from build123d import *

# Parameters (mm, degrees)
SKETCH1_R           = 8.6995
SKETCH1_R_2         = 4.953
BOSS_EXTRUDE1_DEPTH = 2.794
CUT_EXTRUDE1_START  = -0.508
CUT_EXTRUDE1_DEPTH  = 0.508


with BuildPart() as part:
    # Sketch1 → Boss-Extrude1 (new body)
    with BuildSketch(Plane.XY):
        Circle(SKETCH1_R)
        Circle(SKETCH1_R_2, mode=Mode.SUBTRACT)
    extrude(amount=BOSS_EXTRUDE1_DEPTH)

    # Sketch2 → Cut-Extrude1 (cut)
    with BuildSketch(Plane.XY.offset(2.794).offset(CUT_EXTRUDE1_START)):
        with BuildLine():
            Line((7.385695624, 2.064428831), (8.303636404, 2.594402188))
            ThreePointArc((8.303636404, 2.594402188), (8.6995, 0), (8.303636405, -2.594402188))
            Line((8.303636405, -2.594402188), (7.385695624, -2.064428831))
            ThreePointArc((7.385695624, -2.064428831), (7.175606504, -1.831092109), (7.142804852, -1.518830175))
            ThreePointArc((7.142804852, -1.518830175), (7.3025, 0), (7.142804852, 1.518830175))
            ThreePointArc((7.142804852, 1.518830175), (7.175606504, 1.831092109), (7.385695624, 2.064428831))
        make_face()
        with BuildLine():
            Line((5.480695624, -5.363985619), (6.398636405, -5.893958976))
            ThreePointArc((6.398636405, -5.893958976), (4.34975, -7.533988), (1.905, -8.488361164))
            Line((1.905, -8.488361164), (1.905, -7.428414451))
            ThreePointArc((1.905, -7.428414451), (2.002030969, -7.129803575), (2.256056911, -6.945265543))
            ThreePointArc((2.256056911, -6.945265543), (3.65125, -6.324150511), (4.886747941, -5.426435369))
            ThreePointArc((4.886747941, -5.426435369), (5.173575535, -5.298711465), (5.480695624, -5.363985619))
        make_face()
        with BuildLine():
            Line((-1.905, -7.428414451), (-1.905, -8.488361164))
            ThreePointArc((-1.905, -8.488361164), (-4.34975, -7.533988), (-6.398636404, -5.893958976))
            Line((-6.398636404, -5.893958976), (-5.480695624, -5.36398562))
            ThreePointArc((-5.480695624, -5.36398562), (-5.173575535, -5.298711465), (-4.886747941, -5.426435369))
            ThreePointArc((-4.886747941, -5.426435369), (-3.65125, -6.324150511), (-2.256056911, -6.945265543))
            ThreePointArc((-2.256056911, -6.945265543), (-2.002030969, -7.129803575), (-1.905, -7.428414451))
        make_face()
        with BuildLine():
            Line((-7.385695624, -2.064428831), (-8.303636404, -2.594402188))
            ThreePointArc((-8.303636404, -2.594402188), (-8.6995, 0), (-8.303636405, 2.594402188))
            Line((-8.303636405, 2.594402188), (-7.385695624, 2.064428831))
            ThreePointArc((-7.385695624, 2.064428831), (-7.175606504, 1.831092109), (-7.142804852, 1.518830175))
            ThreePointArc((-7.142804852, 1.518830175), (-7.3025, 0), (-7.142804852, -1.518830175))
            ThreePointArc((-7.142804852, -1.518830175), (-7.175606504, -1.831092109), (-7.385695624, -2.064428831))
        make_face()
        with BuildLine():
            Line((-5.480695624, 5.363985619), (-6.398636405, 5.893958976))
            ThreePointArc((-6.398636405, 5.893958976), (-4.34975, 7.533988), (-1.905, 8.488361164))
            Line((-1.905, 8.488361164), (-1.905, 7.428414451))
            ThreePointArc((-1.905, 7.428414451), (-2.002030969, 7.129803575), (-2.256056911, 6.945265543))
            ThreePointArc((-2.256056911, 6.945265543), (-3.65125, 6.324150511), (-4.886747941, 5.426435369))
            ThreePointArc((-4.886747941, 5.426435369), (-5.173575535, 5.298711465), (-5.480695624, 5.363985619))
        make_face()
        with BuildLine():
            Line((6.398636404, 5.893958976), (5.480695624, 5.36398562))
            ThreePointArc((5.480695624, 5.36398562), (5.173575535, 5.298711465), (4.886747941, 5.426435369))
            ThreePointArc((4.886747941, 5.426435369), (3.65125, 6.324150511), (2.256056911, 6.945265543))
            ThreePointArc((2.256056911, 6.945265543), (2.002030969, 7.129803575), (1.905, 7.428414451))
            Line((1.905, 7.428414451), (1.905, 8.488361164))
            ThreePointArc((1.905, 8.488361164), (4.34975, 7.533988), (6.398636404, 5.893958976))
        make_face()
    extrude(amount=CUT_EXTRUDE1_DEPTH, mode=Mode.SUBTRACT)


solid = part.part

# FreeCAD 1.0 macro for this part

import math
import FreeCAD as App
import Part
import Sketcher
Q = App.Units.Quantity

doc = App.newDocument("Part")
body = doc.addObject("PartDesign::Body", "Body")

sketch1 = body.newObject("Sketcher::SketchObject", "Sketch")
sketch1.AttachmentSupport = (doc.getObject("XY_Plane"), [""])
sketch1.MapMode = "FlatFace"
sketch1.addGeometry([
    Part.Circle(App.Vector(0, 0, 0), App.Vector(0, 0, 1), 8.7),
    Part.Circle(App.Vector(0, 0, 0), App.Vector(0, 0, 1), 5),
], False)
sketch1.addConstraint([
    Sketcher.Constraint("Coincident", 0, 3, -1, 1),
    Sketcher.Constraint("Coincident", 1, 3, -1, 1),
    Sketcher.Constraint("Diameter", 1, Q("0.39 in")),
    Sketcher.Constraint("Diameter", 0, Q("0.685 in")),
])
pad1 = body.newObject("PartDesign::Pad", "Pad")
pad1.Profile = sketch1
pad1.Length = Q("0.11 in")

sketch2 = body.newObject("Sketcher::SketchObject", "Sketch001")
sketch2.AttachmentSupport = (doc.getObject("XY_Plane"), [""])
sketch2.MapMode = "FlatFace"
sketch2.AttachmentOffset = App.Placement(App.Vector(0, 0, 0.09 * 25.4), App.Rotation())
sketch2.addGeometry([
    Part.LineSegment(App.Vector(8.3, 2.6, 0), App.Vector(7.4, 2.1, 0)),
    Part.ArcOfCircle(Part.Circle(App.Vector(7.6, 1.6, 0), App.Vector(0, 0, 1), 0.5), math.radians(120), math.radians(192)),
    Part.ArcOfCircle(Part.Circle(App.Vector(0, 0, 0), App.Vector(0, 0, 1), 7.3), math.radians(-12), math.radians(12)),
    Part.ArcOfCircle(Part.Circle(App.Vector(7.6, -1.6, 0), App.Vector(0, 0, 1), 0.5), math.radians(168), math.radians(240)),
    Part.LineSegment(App.Vector(7.4, -2.1, 0), App.Vector(8.3, -2.6, 0)),
    Part.ArcOfCircle(Part.Circle(App.Vector(0, 0, 0), App.Vector(0, 0, 1), 8.7), math.radians(-17), math.radians(17)),
    Part.LineSegment(App.Vector(6.4, -5.9, 0), App.Vector(5.5, -5.4, 0)),
    Part.ArcOfCircle(Part.Circle(App.Vector(5.2, -5.8, 0), App.Vector(0, 0, 1), 0.5), math.radians(60), math.radians(132)),
    Part.ArcOfCircle(Part.Circle(App.Vector(0, 0, 0), App.Vector(0, 0, 1), 7.3), math.radians(-72), math.radians(-48)),
    Part.ArcOfCircle(Part.Circle(App.Vector(2.4, -7.4, 0), App.Vector(0, 0, 1), 0.5), math.radians(108), math.radians(180)),
    Part.LineSegment(App.Vector(1.9, -7.4, 0), App.Vector(1.9, -8.5, 0)),
    Part.ArcOfCircle(Part.Circle(App.Vector(0, 0, 0), App.Vector(0, 0, 1), 8.7), math.radians(-77), math.radians(-43)),
    Part.LineSegment(App.Vector(-1.9, -8.5, 0), App.Vector(-1.9, -7.4, 0)),
    Part.ArcOfCircle(Part.Circle(App.Vector(-2.4, -7.4, 0), App.Vector(0, 0, 1), 0.5), math.radians(0), math.radians(72)),
    Part.ArcOfCircle(Part.Circle(App.Vector(0, 0, 0), App.Vector(0, 0, 1), 7.3), math.radians(-132), math.radians(-108)),
    Part.ArcOfCircle(Part.Circle(App.Vector(-5.2, -5.8, 0), App.Vector(0, 0, 1), 0.5), math.radians(48), math.radians(120)),
    Part.LineSegment(App.Vector(-5.5, -5.4, 0), App.Vector(-6.4, -5.9, 0)),
    Part.ArcOfCircle(Part.Circle(App.Vector(0, 0, 0), App.Vector(0, 0, 1), 8.7), math.radians(-137), math.radians(-103)),
    Part.LineSegment(App.Vector(-8.3, -2.6, 0), App.Vector(-7.4, -2.1, 0)),
    Part.ArcOfCircle(Part.Circle(App.Vector(-7.6, -1.6, 0), App.Vector(0, 0, 1), 0.5), math.radians(-60), math.radians(12)),
    Part.ArcOfCircle(Part.Circle(App.Vector(0, 0, 0), App.Vector(0, 0, 1), 7.3), math.radians(168), math.radians(192)),
    Part.ArcOfCircle(Part.Circle(App.Vector(-7.6, 1.6, 0), App.Vector(0, 0, 1), 0.5), math.radians(-12), math.radians(60)),
    Part.LineSegment(App.Vector(-7.4, 2.1, 0), App.Vector(-8.3, 2.6, 0)),
    Part.ArcOfCircle(Part.Circle(App.Vector(0, 0, 0), App.Vector(0, 0, 1), 8.7), math.radians(163), math.radians(197)),
    Part.LineSegment(App.Vector(-6.4, 5.9, 0), App.Vector(-5.5, 5.4, 0)),
    Part.ArcOfCircle(Part.Circle(App.Vector(-5.2, 5.8, 0), App.Vector(0, 0, 1), 0.5), math.radians(-120), math.radians(-48)),
    Part.ArcOfCircle(Part.Circle(App.Vector(0, 0, 0), App.Vector(0, 0, 1), 7.3), math.radians(108), math.radians(132)),
    Part.ArcOfCircle(Part.Circle(App.Vector(-2.4, 7.4, 0), App.Vector(0, 0, 1), 0.5), math.radians(-72), math.radians(0)),
    Part.LineSegment(App.Vector(-1.9, 7.4, 0), App.Vector(-1.9, 8.5, 0)),
    Part.ArcOfCircle(Part.Circle(App.Vector(0, 0, 0), App.Vector(0, 0, 1), 8.7), math.radians(103), math.radians(137)),
    Part.LineSegment(App.Vector(5.5, 5.4, 0), App.Vector(6.4, 5.9, 0)),
    Part.ArcOfCircle(Part.Circle(App.Vector(0, 0, 0), App.Vector(0, 0, 1), 8.7), math.radians(43), math.radians(77)),
    Part.LineSegment(App.Vector(1.9, 8.5, 0), App.Vector(1.9, 7.4, 0)),
    Part.ArcOfCircle(Part.Circle(App.Vector(2.4, 7.4, 0), App.Vector(0, 0, 1), 0.5), math.radians(-180), math.radians(-108)),
    Part.ArcOfCircle(Part.Circle(App.Vector(0, 0, 0), App.Vector(0, 0, 1), 7.3), math.radians(48), math.radians(72)),
    Part.ArcOfCircle(Part.Circle(App.Vector(5.2, 5.8, 0), App.Vector(0, 0, 1), 0.5), math.radians(-132), math.radians(-60)),
], False)
sketch2.addConstraint([
    Sketcher.Constraint("Tangent", 0, 2, 1, 1),
    Sketcher.Constraint("Tangent", 1, 2, 2, 2),
    Sketcher.Constraint("Tangent", 2, 1, 3, 1),
    Sketcher.Constraint("Tangent", 3, 2, 4, 1),
    Sketcher.Constraint("Coincident", 4, 2, 5, 1),
    Sketcher.Constraint("Coincident", 5, 2, 0, 1),
    Sketcher.Constraint("Tangent", 6, 2, 7, 1),
    Sketcher.Constraint("Tangent", 7, 2, 8, 2),
    Sketcher.Constraint("Tangent", 8, 1, 9, 1),
    Sketcher.Constraint("Tangent", 9, 2, 10, 1),
    Sketcher.Constraint("Coincident", 10, 2, 11, 1),
    Sketcher.Constraint("Coincident", 11, 2, 6, 1),
    Sketcher.Constraint("Tangent", 12, 2, 13, 1),
    Sketcher.Constraint("Tangent", 13, 2, 14, 2),
    Sketcher.Constraint("Tangent", 14, 1, 15, 1),
    Sketcher.Constraint("Tangent", 15, 2, 16, 1),
    Sketcher.Constraint("Coincident", 16, 2, 17, 1),
    Sketcher.Constraint("Coincident", 17, 2, 12, 1),
    Sketcher.Constraint("Tangent", 18, 2, 19, 1),
    Sketcher.Constraint("Tangent", 19, 2, 20, 2),
    Sketcher.Constraint("Tangent", 20, 1, 21, 1),
    Sketcher.Constraint("Tangent", 21, 2, 22, 1),
    Sketcher.Constraint("Coincident", 22, 2, 23, 1),
    Sketcher.Constraint("Coincident", 23, 2, 18, 1),
    Sketcher.Constraint("Tangent", 24, 2, 25, 1),
    Sketcher.Constraint("Tangent", 25, 2, 26, 2),
    Sketcher.Constraint("Tangent", 26, 1, 27, 1),
    Sketcher.Constraint("Tangent", 27, 2, 28, 1),
    Sketcher.Constraint("Coincident", 28, 2, 29, 1),
    Sketcher.Constraint("Coincident", 29, 2, 24, 1),
    Sketcher.Constraint("Coincident", 30, 2, 31, 1),
    Sketcher.Constraint("Coincident", 31, 2, 32, 1),
    Sketcher.Constraint("Tangent", 32, 2, 33, 1),
    Sketcher.Constraint("Tangent", 33, 2, 34, 2),
    Sketcher.Constraint("Tangent", 34, 1, 35, 1),
    Sketcher.Constraint("Tangent", 35, 2, 30, 1),
    Sketcher.Constraint("Vertical", 10),
    Sketcher.Constraint("Vertical", 12),
    Sketcher.Constraint("Vertical", 28),
    Sketcher.Constraint("Vertical", 32),
    Sketcher.Constraint("Coincident", 2, 3, -1, 1),
    Sketcher.Constraint("Coincident", 5, 3, -1, 1),
    Sketcher.Constraint("Coincident", 8, 3, -1, 1),
    Sketcher.Constraint("Coincident", 11, 3, -1, 1),
    Sketcher.Constraint("Coincident", 14, 3, -1, 1),
    Sketcher.Constraint("Coincident", 17, 3, -1, 1),
    Sketcher.Constraint("Coincident", 20, 3, -1, 1),
    Sketcher.Constraint("Coincident", 23, 3, -1, 1),
    Sketcher.Constraint("Coincident", 26, 3, -1, 1),
    Sketcher.Constraint("Coincident", 29, 3, -1, 1),
    Sketcher.Constraint("Coincident", 31, 3, -1, 1),
    Sketcher.Constraint("Coincident", 34, 3, -1, 1),
    Sketcher.Constraint("Equal", 1, 3),
    Sketcher.Constraint("Equal", 3, 7),
    Sketcher.Constraint("Equal", 2, 8),
    Sketcher.Constraint("Equal", 7, 9),
    Sketcher.Constraint("Equal", 5, 11),
    Sketcher.Constraint("Equal", 9, 13),
    Sketcher.Constraint("Equal", 8, 14),
    Sketcher.Constraint("Equal", 13, 15),
    Sketcher.Constraint("Equal", 11, 17),
    Sketcher.Constraint("Equal", 15, 19),
    Sketcher.Constraint("Equal", 14, 20),
    Sketcher.Constraint("Equal", 19, 21),
    Sketcher.Constraint("Equal", 17, 23),
    Sketcher.Constraint("Equal", 21, 25),
    Sketcher.Constraint("Equal", 20, 26),
    Sketcher.Constraint("Equal", 25, 27),
    Sketcher.Constraint("Equal", 23, 29),
    Sketcher.Constraint("Equal", 29, 31),
    Sketcher.Constraint("Equal", 27, 33),
    Sketcher.Constraint("Equal", 26, 34),
    Sketcher.Constraint("Equal", 33, 35),
    Sketcher.Constraint("Symmetric", 0, 2, 18, 2, -1, 1),
    Sketcher.Constraint("Symmetric", 3, 2, 21, 2, -1, 1),
    Sketcher.Constraint("Symmetric", 6, 2, 24, 2, -1, 1),
    Sketcher.Constraint("Symmetric", 15, 2, 35, 2, -1, 1),
    Sketcher.Constraint("Symmetric", 6, 2, 15, 2, -2),
    Sketcher.Constraint("Symmetric", 3, 2, 18, 2, -2),
    Sketcher.Constraint("Parallel", 4, 6),
    Sketcher.Constraint("Horizontal", 9, 3, 13, 3),
    Sketcher.Constraint("Horizontal", 27, 3, 33, 3),
    Sketcher.Constraint("Vertical", 13, 3, 27, 3),
    Sketcher.Constraint("Equal", 4, 6),
    Sketcher.Constraint("Radius", 1, Q("0.02 in")),
    Sketcher.Constraint("Angle", 0, Q("-150 deg")),
    Sketcher.Constraint("Radius", 2, Q("0.2875 in")),
    Sketcher.Constraint("Radius", 5, Q("0.3425 in")),
    Sketcher.Constraint("DistanceX", 13, 3, 9, 3, Q("0.19 in")),
    Sketcher.Constraint("DistanceX", 7, 3, 3, 3, Q("0.095 in")),
])
pocket1 = body.newObject("PartDesign::Pocket", "Pocket")
pocket1.Profile = sketch2
pocket1.Length = Q("0.02 in")
pocket1.Reversed = True

doc.recompute()
